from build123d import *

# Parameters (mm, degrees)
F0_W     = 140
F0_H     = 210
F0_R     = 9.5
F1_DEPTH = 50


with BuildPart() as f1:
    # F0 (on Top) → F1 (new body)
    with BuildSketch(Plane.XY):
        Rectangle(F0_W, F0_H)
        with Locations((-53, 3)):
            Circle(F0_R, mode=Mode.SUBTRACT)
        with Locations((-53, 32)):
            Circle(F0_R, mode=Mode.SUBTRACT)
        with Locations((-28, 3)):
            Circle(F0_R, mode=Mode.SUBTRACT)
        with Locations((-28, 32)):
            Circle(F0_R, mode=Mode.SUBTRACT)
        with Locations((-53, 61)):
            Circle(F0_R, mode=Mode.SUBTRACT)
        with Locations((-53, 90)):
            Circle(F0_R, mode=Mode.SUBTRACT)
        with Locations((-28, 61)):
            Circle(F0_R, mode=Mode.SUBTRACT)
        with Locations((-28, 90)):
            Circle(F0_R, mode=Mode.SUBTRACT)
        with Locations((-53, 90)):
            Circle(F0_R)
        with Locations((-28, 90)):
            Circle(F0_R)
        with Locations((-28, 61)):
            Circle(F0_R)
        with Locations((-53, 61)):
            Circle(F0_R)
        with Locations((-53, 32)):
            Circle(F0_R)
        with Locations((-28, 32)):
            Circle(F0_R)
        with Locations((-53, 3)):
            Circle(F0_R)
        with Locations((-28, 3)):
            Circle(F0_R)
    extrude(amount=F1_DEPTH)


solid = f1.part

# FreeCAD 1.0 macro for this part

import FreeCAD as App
import Part
import Sketcher
from FreeCAD import Vector

doc = App.newDocument("Part")
body = doc.addObject("PartDesign::Body", "Body")

sketch1 = doc.addObject("Sketcher::SketchObject", "Sketch")
body.addObject(sketch1)
sketch1.AttachmentSupport = (doc.XY_Plane, [""])
sketch1.MapMode = "FlatFace"
sketch1.addGeometry([
    Part.LineSegment(Vector(-70, 105, 0), Vector(-70, -105, 0)),
    Part.LineSegment(Vector(-70, -105, 0), Vector(70, -105, 0)),
    Part.LineSegment(Vector(70, -105, 0), Vector(70, 105, 0)),
    Part.LineSegment(Vector(70, 105, 0), Vector(-70, 105, 0)),
], False)
sketch1.addConstraint([
    Sketcher.Constraint("Coincident", 0, 2, 1, 1),
    Sketcher.Constraint("Coincident", 1, 2, 2, 1),
    Sketcher.Constraint("Coincident", 2, 2, 3, 1),
    Sketcher.Constraint("Coincident", 3, 2, 0, 1),
    Sketcher.Constraint("Vertical", 0),
    Sketcher.Constraint("Horizontal", 1),
    Sketcher.Constraint("Vertical", 2),
    Sketcher.Constraint("Horizontal", 3),
    Sketcher.Constraint("Symmetric", 0, 2, 2, 2, -1, 1),
    Sketcher.Constraint("DistanceX", 1, 1, 1, 2, 140.0),
    Sketcher.Constraint("DistanceY", 0, 2, 0, 1, 210.0),
])
pad1 = doc.addObject("PartDesign::Pad", "Pad")
body.addObject(pad1)
pad1.Profile = sketch1
pad1.Length = 50

doc.recompute()
